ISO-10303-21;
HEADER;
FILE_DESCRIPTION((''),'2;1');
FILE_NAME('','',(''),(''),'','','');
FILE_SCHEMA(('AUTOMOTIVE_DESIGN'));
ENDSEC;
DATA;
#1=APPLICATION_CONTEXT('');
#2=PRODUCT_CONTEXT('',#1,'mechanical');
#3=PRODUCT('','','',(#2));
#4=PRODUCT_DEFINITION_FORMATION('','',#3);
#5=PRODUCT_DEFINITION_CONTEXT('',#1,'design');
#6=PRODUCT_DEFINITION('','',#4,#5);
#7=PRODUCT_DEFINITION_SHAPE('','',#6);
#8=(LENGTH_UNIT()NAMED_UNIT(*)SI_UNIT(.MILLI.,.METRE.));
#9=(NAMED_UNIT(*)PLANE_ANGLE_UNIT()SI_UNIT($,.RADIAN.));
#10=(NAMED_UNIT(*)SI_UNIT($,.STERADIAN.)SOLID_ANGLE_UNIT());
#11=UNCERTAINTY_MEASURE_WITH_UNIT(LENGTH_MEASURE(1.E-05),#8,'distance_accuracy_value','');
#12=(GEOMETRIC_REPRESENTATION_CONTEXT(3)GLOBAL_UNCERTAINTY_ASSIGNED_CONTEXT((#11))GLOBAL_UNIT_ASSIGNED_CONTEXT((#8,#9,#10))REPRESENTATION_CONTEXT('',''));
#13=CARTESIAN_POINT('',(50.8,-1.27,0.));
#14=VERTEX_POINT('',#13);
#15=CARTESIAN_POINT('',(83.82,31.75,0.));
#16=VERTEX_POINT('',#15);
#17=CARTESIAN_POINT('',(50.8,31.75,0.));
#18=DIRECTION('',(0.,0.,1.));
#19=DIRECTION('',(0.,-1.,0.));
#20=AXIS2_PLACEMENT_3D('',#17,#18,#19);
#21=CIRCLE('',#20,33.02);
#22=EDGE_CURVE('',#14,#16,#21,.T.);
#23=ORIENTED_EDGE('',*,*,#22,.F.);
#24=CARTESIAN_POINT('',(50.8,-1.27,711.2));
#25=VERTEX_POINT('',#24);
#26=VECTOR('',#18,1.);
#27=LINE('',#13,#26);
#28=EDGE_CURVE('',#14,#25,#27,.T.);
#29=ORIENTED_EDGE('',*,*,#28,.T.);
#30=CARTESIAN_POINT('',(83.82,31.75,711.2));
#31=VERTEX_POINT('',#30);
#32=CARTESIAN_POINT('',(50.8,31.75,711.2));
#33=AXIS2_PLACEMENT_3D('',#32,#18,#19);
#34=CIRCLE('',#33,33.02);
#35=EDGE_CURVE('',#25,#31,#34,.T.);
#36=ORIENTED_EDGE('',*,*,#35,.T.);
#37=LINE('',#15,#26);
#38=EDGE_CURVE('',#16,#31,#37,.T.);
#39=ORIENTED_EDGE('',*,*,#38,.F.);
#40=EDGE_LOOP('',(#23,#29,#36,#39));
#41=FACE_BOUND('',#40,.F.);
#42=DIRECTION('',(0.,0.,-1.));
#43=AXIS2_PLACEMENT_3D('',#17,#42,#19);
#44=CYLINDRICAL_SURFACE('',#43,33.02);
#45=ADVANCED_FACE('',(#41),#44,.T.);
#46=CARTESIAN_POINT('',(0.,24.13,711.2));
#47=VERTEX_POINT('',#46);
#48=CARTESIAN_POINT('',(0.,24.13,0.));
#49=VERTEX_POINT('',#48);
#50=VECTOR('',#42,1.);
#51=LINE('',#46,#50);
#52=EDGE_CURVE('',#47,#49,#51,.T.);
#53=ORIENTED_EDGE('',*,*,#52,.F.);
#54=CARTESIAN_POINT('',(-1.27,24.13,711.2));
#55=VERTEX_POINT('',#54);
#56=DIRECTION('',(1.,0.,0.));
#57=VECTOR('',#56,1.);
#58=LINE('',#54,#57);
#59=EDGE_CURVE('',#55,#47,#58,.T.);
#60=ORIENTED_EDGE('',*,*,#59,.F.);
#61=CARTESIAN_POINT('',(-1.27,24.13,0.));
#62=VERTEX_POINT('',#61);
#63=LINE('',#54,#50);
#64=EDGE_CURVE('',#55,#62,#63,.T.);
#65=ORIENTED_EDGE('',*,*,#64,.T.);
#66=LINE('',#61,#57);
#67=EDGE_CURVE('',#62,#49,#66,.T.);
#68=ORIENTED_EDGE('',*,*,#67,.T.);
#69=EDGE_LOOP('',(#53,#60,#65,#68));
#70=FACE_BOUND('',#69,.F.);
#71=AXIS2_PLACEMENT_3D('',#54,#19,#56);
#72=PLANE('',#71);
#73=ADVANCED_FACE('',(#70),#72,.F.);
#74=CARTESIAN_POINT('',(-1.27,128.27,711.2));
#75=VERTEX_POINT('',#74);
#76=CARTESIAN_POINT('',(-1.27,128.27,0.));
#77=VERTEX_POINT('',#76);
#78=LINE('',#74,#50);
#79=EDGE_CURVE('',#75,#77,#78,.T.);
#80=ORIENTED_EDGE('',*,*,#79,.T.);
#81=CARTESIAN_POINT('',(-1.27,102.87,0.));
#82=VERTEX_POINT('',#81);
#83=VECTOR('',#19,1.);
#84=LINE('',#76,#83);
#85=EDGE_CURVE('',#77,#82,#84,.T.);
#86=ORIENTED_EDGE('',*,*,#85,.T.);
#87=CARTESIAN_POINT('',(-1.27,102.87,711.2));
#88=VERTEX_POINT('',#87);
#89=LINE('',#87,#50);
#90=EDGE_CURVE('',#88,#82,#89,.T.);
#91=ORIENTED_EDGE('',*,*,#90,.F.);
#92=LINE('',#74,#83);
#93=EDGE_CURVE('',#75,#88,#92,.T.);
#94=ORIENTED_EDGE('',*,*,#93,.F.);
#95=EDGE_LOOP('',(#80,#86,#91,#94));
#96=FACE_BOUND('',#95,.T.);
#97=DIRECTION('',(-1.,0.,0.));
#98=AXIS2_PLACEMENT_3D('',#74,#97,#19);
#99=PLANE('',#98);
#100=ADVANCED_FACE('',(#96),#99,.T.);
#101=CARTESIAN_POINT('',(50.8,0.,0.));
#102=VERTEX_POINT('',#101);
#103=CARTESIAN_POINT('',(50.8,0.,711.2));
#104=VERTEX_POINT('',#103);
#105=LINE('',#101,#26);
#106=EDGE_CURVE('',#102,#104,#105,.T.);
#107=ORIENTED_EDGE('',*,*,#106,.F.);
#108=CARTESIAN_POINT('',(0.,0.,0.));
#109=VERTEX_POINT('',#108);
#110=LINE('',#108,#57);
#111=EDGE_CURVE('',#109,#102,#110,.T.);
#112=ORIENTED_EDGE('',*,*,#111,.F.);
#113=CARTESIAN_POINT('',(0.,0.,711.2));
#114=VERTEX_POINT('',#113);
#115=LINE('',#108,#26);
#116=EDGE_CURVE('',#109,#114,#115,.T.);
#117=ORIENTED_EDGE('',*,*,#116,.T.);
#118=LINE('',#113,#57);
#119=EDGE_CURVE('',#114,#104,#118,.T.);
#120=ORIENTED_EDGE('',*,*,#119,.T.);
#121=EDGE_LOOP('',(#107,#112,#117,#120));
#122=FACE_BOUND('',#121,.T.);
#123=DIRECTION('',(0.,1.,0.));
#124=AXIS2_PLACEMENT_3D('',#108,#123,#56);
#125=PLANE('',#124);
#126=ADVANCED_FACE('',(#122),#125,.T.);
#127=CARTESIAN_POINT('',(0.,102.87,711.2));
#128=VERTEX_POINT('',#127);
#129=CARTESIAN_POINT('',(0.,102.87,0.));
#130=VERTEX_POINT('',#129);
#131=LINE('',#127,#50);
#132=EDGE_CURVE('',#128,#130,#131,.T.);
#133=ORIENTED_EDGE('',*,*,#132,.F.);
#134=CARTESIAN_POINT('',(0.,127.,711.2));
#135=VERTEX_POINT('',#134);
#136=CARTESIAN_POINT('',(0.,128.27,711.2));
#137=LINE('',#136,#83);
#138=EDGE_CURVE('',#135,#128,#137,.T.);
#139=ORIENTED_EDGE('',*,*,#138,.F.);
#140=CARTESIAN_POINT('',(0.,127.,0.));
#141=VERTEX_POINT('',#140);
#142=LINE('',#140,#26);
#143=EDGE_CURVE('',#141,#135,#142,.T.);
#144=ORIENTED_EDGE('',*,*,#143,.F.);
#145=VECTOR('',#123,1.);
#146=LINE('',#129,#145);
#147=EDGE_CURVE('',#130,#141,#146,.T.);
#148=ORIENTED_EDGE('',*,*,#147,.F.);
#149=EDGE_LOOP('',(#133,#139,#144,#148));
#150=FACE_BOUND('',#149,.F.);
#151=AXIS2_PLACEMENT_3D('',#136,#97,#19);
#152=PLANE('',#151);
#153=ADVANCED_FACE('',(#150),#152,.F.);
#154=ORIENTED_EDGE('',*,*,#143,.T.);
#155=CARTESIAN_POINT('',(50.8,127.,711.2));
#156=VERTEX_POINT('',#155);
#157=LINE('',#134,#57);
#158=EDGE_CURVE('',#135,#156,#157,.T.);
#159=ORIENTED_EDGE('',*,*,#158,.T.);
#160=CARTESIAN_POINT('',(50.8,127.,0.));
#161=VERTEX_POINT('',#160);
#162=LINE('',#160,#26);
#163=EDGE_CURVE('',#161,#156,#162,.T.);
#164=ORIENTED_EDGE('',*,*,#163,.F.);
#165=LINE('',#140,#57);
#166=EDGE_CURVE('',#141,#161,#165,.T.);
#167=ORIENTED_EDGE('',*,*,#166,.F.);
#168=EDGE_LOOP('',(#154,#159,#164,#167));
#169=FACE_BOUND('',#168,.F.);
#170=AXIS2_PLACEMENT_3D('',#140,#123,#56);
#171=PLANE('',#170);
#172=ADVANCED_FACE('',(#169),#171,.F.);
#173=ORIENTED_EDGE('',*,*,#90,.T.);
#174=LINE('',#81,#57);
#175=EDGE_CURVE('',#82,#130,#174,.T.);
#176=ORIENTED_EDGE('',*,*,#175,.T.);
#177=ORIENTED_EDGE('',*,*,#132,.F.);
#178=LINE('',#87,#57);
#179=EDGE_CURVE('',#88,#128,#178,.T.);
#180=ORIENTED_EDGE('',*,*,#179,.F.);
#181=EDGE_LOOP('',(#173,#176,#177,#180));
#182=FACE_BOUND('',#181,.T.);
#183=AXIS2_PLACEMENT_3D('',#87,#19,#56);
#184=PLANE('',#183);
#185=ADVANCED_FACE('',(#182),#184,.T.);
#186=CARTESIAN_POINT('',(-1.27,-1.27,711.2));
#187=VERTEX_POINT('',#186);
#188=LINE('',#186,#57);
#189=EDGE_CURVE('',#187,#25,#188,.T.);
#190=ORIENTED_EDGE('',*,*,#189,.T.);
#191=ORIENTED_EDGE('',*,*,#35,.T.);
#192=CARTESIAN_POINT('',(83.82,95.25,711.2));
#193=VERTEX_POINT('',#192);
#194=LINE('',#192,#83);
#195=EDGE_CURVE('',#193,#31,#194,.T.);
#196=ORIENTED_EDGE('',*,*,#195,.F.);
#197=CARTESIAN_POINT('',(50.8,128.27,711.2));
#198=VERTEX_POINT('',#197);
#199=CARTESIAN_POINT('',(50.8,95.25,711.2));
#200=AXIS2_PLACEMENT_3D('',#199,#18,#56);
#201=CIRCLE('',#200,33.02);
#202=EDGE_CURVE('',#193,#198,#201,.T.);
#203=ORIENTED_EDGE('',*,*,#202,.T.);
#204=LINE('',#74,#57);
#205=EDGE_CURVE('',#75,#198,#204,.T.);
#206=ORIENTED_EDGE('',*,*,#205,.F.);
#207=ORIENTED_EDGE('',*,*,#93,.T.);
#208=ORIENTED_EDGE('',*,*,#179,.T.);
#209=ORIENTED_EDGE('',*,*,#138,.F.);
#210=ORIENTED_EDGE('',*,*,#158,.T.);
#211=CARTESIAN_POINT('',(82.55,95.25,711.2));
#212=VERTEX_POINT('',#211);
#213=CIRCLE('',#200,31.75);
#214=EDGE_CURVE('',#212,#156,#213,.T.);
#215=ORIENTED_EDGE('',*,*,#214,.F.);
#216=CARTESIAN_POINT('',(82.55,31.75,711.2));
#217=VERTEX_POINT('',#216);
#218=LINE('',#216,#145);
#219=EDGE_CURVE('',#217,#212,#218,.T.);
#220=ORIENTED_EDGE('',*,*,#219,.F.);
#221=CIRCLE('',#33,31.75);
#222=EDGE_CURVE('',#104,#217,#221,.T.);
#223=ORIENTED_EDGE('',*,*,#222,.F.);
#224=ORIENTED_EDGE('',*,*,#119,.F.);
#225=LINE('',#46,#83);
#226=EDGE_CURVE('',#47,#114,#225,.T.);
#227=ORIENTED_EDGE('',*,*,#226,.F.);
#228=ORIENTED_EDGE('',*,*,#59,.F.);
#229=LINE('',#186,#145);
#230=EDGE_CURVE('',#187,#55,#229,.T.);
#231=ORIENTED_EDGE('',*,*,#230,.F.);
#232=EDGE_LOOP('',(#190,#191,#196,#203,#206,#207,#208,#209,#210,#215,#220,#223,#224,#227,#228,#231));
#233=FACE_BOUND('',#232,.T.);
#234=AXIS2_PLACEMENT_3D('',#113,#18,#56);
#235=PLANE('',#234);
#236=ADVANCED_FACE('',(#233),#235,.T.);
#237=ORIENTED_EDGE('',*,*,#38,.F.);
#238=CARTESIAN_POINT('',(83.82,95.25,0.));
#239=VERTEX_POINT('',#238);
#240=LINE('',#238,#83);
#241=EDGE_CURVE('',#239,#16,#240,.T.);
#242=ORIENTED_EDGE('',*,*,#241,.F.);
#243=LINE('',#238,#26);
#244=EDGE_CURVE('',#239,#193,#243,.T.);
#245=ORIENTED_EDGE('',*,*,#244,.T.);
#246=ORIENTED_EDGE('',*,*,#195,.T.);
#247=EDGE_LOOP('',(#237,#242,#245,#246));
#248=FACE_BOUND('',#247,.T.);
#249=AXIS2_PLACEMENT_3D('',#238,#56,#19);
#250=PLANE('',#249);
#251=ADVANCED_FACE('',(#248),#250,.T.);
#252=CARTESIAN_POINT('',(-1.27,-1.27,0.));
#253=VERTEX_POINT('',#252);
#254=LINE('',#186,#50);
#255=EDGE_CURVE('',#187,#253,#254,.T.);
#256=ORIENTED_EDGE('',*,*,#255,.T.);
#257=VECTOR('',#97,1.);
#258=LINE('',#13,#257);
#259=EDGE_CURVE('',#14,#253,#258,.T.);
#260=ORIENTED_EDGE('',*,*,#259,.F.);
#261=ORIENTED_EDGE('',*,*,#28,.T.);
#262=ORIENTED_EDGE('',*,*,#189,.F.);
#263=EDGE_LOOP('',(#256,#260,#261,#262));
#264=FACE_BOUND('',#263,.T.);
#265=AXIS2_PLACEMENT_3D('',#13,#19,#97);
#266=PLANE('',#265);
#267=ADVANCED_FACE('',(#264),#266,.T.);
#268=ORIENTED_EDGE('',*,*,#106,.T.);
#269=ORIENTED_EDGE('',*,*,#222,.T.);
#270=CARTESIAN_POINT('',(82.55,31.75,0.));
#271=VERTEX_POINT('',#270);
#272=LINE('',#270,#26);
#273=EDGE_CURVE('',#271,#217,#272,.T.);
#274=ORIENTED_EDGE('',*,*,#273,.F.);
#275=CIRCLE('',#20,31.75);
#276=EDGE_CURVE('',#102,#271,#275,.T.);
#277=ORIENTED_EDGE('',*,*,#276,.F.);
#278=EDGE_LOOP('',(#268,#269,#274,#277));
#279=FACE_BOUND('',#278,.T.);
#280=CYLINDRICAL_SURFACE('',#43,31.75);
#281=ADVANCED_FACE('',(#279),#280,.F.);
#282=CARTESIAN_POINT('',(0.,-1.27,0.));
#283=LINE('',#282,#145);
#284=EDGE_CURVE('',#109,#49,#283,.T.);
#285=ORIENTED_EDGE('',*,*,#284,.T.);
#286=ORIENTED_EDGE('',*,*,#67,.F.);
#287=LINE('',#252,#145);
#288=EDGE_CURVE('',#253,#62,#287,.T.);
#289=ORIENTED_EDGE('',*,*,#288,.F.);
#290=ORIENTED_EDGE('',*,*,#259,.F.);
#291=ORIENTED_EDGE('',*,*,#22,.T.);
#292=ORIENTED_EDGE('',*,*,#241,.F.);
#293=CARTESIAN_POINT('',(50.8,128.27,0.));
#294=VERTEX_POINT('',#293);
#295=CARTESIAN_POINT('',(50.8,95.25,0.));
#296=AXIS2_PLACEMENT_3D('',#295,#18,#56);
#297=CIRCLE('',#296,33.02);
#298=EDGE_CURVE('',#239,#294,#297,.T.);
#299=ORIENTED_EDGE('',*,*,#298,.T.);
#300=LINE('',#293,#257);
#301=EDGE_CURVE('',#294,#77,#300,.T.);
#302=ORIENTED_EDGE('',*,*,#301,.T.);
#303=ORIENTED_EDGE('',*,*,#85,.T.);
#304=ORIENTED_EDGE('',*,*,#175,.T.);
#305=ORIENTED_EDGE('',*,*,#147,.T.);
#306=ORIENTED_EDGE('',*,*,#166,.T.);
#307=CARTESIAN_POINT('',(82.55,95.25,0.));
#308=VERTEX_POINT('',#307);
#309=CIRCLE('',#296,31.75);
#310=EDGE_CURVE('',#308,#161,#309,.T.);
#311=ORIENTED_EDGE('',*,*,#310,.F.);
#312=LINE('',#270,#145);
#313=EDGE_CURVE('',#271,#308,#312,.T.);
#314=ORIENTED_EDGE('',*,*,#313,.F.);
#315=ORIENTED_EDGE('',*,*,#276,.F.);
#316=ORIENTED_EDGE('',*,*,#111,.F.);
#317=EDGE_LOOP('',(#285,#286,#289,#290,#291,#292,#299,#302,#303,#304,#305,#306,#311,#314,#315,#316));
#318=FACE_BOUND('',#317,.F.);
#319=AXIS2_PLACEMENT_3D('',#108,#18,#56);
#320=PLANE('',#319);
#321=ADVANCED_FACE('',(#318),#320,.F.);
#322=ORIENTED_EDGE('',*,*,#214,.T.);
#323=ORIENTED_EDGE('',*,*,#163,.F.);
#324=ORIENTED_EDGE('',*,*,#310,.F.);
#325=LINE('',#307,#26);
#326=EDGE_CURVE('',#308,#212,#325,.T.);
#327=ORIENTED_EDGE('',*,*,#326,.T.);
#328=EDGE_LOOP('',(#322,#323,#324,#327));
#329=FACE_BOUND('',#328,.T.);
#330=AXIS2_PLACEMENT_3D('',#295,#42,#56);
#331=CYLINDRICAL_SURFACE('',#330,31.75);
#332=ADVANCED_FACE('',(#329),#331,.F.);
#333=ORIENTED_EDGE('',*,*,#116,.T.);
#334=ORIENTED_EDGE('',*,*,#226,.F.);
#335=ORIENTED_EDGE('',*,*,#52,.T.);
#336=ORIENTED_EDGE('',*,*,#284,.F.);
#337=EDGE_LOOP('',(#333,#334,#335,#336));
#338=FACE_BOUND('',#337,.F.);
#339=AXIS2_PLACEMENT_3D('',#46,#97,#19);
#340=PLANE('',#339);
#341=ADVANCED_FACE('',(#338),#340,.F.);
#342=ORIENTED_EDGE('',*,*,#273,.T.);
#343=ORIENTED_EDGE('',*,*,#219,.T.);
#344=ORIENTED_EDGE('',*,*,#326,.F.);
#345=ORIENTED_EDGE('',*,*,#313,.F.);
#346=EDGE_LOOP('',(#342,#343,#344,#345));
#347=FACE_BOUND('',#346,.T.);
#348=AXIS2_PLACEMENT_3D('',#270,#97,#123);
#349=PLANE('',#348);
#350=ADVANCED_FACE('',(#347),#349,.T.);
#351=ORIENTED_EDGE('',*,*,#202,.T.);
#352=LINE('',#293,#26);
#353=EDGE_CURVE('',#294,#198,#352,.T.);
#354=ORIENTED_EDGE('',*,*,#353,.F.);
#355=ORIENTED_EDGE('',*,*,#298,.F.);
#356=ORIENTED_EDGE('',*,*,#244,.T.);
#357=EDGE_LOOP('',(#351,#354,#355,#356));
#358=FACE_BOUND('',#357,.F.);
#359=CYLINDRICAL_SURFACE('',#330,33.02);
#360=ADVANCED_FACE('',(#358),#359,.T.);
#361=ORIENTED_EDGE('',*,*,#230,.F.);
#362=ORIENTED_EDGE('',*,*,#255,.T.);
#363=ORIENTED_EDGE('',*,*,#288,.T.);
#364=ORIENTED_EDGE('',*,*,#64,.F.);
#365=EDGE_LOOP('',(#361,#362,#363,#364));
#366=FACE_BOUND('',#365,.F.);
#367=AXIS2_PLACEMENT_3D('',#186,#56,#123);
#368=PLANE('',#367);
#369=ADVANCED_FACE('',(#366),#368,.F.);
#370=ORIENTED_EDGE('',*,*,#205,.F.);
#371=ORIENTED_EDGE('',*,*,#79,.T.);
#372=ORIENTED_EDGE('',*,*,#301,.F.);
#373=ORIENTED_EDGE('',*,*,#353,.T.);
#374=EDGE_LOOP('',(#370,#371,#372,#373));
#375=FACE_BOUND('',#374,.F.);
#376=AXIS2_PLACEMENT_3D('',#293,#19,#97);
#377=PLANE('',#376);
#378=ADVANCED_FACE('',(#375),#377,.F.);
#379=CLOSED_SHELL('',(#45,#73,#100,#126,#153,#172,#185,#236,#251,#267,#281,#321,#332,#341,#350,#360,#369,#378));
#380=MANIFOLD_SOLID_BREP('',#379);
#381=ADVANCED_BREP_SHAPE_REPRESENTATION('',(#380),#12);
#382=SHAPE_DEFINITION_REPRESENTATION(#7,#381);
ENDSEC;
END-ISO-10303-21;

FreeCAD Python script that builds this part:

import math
import FreeCAD as App
import Part
import Sketcher
from FreeCAD import Vector
Q = App.Units.Quantity

doc = App.newDocument("Part")
body = doc.addObject("PartDesign::Body", "Body")

# Sketch on XY plane
sketch1 = body.newObject("Sketcher::SketchObject", "Sketch")
sketch1.AttachmentSupport = (doc.getObject("XY_Plane"), [""])
sketch1.MapMode = "FlatFace"
sketch1.addGeometry(Part.LineSegment(Vector(0, 128.27, 0), Vector(0, 127, 0)), False)
sketch1.addGeometry(Part.LineSegment(Vector(0, 127, 0), Vector(50.8, 127, 0)), False)
sketch1.addGeometry(Part.ArcOfCircle(Part.Circle(Vector(50.8, 95.25, 0), Vector(0, 0, 1), 31.75), math.radians(0), math.radians(90)), False)
sketch1.addGeometry(Part.LineSegment(Vector(82.55, 95.25, 0), Vector(82.55, 31.75, 0)), False)
sketch1.addGeometry(Part.ArcOfCircle(Part.Circle(Vector(50.8, 31.75, 0), Vector(0, 0, 1), 31.75), math.radians(-90), math.radians(0)), False)
sketch1.addGeometry(Part.LineSegment(Vector(50.8, 0, 0), Vector(0, 0, 0)), False)
sketch1.addGeometry(Part.LineSegment(Vector(0, 0, 0), Vector(0, -1.27, 0)), False)
sketch1.addGeometry(Part.LineSegment(Vector(0, -1.27, 0), Vector(50.8, -1.27, 0)), False)
sketch1.addGeometry(Part.ArcOfCircle(Part.Circle(Vector(50.8, 31.75, 0), Vector(0, 0, 1), 33.02), math.radians(-90), math.radians(0)), False)
sketch1.addGeometry(Part.LineSegment(Vector(83.82, 31.75, 0), Vector(83.82, 95.25, 0)), False)
sketch1.addGeometry(Part.ArcOfCircle(Part.Circle(Vector(50.8, 95.25, 0), Vector(0, 0, 1), 33.02), math.radians(0), math.radians(90)), False)
sketch1.addGeometry(Part.LineSegment(Vector(50.8, 128.27, 0), Vector(0, 128.27, 0)), False)
sketch1.addConstraint(Sketcher.Constraint("Coincident", 0, 2, 1, 1))
sketch1.addConstraint(Sketcher.Constraint("Tangent", 1, 2, 2, 2))
sketch1.addConstraint(Sketcher.Constraint("Tangent", 2, 1, 3, 1))
sketch1.addConstraint(Sketcher.Constraint("Tangent", 3, 2, 4, 2))
sketch1.addConstraint(Sketcher.Constraint("Tangent", 4, 1, 5, 1))
sketch1.addConstraint(Sketcher.Constraint("Coincident", 5, 2, 6, 1))
sketch1.addConstraint(Sketcher.Constraint("Coincident", 6, 2, 7, 1))
sketch1.addConstraint(Sketcher.Constraint("Tangent", 7, 2, 8, 1))
sketch1.addConstraint(Sketcher.Constraint("Tangent", 8, 2, 9, 1))
sketch1.addConstraint(Sketcher.Constraint("Tangent", 9, 2, 10, 1))
sketch1.addConstraint(Sketcher.Constraint("Tangent", 10, 2, 11, 1))
sketch1.addConstraint(Sketcher.Constraint("Coincident", 11, 2, 0, 1))
sketch1.addConstraint(Sketcher.Constraint("Vertical", 0))
sketch1.addConstraint(Sketcher.Constraint("Horizontal", 1))
sketch1.addConstraint(Sketcher.Constraint("Vertical", 3))
sketch1.addConstraint(Sketcher.Constraint("Horizontal", 5))
sketch1.addConstraint(Sketcher.Constraint("Vertical", 6))
sketch1.addConstraint(Sketcher.Constraint("Horizontal", 7))
sketch1.addConstraint(Sketcher.Constraint("Vertical", 9))
sketch1.addConstraint(Sketcher.Constraint("Horizontal", 11))
sketch1.addConstraint(Sketcher.Constraint("Coincident", 5, 2, -1, 1))
sketch1.addConstraint(Sketcher.Constraint("Coincident", 8, 3, 4, 3))
sketch1.addConstraint(Sketcher.Constraint("Coincident", 10, 3, 2, 3))
sketch1.addConstraint(Sketcher.Constraint("Equal", 2, 4))
sketch1.addConstraint(Sketcher.Constraint("PointOnObject", 0, 2, -2))
sketch1.addConstraint(Sketcher.Constraint("Radius", 8, Q("1.3 in")))
sketch1.addConstraint(Sketcher.Constraint("DistanceX", 1, 1, 1, 2, Q("2 in")))
sketch1.addConstraint(Sketcher.Constraint("Radius", 2, Q("1.25 in")))
sketch1.addConstraint(Sketcher.Constraint("DistanceY", 3, 2, 3, 1, Q("2.5 in")))
pad1 = body.newObject("PartDesign::Pad", "Pad")
pad1.Profile = sketch1
pad1.Length = Q("28 in")

# Sketch on XY plane
sketch2 = body.newObject("Sketcher::SketchObject", "Sketch001")
sketch2.AttachmentSupport = (doc.getObject("XY_Plane"), [""])
sketch2.MapMode = "FlatFace"
sketch2.AttachmentOffset = App.Placement(Vector(0, 0, 28 * 25.4), App.Rotation())
sketch2.addGeometry(Part.LineSegment(Vector(0, 102.87, 0), Vector(0, 128.27, 0)), False)
sketch2.addGeometry(Part.LineSegment(Vector(0, 128.27, 0), Vector(-1.27, 128.27, 0)), False)
sketch2.addGeometry(Part.LineSegment(Vector(-1.27, 128.27, 0), Vector(-1.27, 102.87, 0)), False)
sketch2.addGeometry(Part.LineSegment(Vector(-1.27, 102.87, 0), Vector(0, 102.87, 0)), False)
sketch2.addGeometry(Part.LineSegment(Vector(-1.27, -1.27, 0), Vector(0, -1.27, 0)), False)
sketch2.addGeometry(Part.LineSegment(Vector(0, -1.27, 0), Vector(0, 24.13, 0)), False)
sketch2.addGeometry(Part.LineSegment(Vector(0, 24.13, 0), Vector(-1.27, 24.13, 0)), False)
sketch2.addGeometry(Part.LineSegment(Vector(-1.27, 24.13, 0), Vector(-1.27, -1.27, 0)), False)
sketch2.addConstraint(Sketcher.Constraint("Coincident", 0, 2, 1, 1))
sketch2.addConstraint(Sketcher.Constraint("Coincident", 1, 2, 2, 1))
sketch2.addConstraint(Sketcher.Constraint("Coincident", 2, 2, 3, 1))
sketch2.addConstraint(Sketcher.Constraint("Coincident", 3, 2, 0, 1))
sketch2.addConstraint(Sketcher.Constraint("Coincident", 4, 2, 5, 1))
sketch2.addConstraint(Sketcher.Constraint("Coincident", 5, 2, 6, 1))
sketch2.addConstraint(Sketcher.Constraint("Coincident", 6, 2, 7, 1))
sketch2.addConstraint(Sketcher.Constraint("Coincident", 7, 2, 4, 1))
sketch2.addConstraint(Sketcher.Constraint("Vertical", 0))
sketch2.addConstraint(Sketcher.Constraint("Horizontal", 1))
sketch2.addConstraint(Sketcher.Constraint("Vertical", 2))
sketch2.addConstraint(Sketcher.Constraint("Horizontal", 3))
sketch2.addConstraint(Sketcher.Constraint("Horizontal", 4))
sketch2.addConstraint(Sketcher.Constraint("Vertical", 5))
sketch2.addConstraint(Sketcher.Constraint("Horizontal", 6))
sketch2.addConstraint(Sketcher.Constraint("Vertical", 7))
sketch2.addConstraint(Sketcher.Constraint("PointOnObject", 0, 2, -2))
sketch2.addConstraint(Sketcher.Constraint("PointOnObject", 4, 2, -2))
sketch2.addConstraint(Sketcher.Constraint("Vertical", 2, 2, 6, 2))
sketch2.addConstraint(Sketcher.Constraint("Equal", 2, 5))
sketch2.addConstraint(Sketcher.Constraint("DistanceY", 0, 1, 0, 2, Q("1 in")))
sketch2.addConstraint(Sketcher.Constraint("DistanceX", 1, 2, 1, 1, Q("0.05 in")))
sketch2.addConstraint(Sketcher.Constraint("DistanceY", 4, 2, -1, 1, Q("0.05 in")))
sketch2.addConstraint(Sketcher.Constraint("DistanceY", 4, 2, 3, 2, Q("4.1 in")))
pad2 = body.newObject("PartDesign::Pad", "Pad001")
pad2.Profile = sketch2
pad2.Length = Q("28 in")
pad2.Reversed = True

doc.recompute()
